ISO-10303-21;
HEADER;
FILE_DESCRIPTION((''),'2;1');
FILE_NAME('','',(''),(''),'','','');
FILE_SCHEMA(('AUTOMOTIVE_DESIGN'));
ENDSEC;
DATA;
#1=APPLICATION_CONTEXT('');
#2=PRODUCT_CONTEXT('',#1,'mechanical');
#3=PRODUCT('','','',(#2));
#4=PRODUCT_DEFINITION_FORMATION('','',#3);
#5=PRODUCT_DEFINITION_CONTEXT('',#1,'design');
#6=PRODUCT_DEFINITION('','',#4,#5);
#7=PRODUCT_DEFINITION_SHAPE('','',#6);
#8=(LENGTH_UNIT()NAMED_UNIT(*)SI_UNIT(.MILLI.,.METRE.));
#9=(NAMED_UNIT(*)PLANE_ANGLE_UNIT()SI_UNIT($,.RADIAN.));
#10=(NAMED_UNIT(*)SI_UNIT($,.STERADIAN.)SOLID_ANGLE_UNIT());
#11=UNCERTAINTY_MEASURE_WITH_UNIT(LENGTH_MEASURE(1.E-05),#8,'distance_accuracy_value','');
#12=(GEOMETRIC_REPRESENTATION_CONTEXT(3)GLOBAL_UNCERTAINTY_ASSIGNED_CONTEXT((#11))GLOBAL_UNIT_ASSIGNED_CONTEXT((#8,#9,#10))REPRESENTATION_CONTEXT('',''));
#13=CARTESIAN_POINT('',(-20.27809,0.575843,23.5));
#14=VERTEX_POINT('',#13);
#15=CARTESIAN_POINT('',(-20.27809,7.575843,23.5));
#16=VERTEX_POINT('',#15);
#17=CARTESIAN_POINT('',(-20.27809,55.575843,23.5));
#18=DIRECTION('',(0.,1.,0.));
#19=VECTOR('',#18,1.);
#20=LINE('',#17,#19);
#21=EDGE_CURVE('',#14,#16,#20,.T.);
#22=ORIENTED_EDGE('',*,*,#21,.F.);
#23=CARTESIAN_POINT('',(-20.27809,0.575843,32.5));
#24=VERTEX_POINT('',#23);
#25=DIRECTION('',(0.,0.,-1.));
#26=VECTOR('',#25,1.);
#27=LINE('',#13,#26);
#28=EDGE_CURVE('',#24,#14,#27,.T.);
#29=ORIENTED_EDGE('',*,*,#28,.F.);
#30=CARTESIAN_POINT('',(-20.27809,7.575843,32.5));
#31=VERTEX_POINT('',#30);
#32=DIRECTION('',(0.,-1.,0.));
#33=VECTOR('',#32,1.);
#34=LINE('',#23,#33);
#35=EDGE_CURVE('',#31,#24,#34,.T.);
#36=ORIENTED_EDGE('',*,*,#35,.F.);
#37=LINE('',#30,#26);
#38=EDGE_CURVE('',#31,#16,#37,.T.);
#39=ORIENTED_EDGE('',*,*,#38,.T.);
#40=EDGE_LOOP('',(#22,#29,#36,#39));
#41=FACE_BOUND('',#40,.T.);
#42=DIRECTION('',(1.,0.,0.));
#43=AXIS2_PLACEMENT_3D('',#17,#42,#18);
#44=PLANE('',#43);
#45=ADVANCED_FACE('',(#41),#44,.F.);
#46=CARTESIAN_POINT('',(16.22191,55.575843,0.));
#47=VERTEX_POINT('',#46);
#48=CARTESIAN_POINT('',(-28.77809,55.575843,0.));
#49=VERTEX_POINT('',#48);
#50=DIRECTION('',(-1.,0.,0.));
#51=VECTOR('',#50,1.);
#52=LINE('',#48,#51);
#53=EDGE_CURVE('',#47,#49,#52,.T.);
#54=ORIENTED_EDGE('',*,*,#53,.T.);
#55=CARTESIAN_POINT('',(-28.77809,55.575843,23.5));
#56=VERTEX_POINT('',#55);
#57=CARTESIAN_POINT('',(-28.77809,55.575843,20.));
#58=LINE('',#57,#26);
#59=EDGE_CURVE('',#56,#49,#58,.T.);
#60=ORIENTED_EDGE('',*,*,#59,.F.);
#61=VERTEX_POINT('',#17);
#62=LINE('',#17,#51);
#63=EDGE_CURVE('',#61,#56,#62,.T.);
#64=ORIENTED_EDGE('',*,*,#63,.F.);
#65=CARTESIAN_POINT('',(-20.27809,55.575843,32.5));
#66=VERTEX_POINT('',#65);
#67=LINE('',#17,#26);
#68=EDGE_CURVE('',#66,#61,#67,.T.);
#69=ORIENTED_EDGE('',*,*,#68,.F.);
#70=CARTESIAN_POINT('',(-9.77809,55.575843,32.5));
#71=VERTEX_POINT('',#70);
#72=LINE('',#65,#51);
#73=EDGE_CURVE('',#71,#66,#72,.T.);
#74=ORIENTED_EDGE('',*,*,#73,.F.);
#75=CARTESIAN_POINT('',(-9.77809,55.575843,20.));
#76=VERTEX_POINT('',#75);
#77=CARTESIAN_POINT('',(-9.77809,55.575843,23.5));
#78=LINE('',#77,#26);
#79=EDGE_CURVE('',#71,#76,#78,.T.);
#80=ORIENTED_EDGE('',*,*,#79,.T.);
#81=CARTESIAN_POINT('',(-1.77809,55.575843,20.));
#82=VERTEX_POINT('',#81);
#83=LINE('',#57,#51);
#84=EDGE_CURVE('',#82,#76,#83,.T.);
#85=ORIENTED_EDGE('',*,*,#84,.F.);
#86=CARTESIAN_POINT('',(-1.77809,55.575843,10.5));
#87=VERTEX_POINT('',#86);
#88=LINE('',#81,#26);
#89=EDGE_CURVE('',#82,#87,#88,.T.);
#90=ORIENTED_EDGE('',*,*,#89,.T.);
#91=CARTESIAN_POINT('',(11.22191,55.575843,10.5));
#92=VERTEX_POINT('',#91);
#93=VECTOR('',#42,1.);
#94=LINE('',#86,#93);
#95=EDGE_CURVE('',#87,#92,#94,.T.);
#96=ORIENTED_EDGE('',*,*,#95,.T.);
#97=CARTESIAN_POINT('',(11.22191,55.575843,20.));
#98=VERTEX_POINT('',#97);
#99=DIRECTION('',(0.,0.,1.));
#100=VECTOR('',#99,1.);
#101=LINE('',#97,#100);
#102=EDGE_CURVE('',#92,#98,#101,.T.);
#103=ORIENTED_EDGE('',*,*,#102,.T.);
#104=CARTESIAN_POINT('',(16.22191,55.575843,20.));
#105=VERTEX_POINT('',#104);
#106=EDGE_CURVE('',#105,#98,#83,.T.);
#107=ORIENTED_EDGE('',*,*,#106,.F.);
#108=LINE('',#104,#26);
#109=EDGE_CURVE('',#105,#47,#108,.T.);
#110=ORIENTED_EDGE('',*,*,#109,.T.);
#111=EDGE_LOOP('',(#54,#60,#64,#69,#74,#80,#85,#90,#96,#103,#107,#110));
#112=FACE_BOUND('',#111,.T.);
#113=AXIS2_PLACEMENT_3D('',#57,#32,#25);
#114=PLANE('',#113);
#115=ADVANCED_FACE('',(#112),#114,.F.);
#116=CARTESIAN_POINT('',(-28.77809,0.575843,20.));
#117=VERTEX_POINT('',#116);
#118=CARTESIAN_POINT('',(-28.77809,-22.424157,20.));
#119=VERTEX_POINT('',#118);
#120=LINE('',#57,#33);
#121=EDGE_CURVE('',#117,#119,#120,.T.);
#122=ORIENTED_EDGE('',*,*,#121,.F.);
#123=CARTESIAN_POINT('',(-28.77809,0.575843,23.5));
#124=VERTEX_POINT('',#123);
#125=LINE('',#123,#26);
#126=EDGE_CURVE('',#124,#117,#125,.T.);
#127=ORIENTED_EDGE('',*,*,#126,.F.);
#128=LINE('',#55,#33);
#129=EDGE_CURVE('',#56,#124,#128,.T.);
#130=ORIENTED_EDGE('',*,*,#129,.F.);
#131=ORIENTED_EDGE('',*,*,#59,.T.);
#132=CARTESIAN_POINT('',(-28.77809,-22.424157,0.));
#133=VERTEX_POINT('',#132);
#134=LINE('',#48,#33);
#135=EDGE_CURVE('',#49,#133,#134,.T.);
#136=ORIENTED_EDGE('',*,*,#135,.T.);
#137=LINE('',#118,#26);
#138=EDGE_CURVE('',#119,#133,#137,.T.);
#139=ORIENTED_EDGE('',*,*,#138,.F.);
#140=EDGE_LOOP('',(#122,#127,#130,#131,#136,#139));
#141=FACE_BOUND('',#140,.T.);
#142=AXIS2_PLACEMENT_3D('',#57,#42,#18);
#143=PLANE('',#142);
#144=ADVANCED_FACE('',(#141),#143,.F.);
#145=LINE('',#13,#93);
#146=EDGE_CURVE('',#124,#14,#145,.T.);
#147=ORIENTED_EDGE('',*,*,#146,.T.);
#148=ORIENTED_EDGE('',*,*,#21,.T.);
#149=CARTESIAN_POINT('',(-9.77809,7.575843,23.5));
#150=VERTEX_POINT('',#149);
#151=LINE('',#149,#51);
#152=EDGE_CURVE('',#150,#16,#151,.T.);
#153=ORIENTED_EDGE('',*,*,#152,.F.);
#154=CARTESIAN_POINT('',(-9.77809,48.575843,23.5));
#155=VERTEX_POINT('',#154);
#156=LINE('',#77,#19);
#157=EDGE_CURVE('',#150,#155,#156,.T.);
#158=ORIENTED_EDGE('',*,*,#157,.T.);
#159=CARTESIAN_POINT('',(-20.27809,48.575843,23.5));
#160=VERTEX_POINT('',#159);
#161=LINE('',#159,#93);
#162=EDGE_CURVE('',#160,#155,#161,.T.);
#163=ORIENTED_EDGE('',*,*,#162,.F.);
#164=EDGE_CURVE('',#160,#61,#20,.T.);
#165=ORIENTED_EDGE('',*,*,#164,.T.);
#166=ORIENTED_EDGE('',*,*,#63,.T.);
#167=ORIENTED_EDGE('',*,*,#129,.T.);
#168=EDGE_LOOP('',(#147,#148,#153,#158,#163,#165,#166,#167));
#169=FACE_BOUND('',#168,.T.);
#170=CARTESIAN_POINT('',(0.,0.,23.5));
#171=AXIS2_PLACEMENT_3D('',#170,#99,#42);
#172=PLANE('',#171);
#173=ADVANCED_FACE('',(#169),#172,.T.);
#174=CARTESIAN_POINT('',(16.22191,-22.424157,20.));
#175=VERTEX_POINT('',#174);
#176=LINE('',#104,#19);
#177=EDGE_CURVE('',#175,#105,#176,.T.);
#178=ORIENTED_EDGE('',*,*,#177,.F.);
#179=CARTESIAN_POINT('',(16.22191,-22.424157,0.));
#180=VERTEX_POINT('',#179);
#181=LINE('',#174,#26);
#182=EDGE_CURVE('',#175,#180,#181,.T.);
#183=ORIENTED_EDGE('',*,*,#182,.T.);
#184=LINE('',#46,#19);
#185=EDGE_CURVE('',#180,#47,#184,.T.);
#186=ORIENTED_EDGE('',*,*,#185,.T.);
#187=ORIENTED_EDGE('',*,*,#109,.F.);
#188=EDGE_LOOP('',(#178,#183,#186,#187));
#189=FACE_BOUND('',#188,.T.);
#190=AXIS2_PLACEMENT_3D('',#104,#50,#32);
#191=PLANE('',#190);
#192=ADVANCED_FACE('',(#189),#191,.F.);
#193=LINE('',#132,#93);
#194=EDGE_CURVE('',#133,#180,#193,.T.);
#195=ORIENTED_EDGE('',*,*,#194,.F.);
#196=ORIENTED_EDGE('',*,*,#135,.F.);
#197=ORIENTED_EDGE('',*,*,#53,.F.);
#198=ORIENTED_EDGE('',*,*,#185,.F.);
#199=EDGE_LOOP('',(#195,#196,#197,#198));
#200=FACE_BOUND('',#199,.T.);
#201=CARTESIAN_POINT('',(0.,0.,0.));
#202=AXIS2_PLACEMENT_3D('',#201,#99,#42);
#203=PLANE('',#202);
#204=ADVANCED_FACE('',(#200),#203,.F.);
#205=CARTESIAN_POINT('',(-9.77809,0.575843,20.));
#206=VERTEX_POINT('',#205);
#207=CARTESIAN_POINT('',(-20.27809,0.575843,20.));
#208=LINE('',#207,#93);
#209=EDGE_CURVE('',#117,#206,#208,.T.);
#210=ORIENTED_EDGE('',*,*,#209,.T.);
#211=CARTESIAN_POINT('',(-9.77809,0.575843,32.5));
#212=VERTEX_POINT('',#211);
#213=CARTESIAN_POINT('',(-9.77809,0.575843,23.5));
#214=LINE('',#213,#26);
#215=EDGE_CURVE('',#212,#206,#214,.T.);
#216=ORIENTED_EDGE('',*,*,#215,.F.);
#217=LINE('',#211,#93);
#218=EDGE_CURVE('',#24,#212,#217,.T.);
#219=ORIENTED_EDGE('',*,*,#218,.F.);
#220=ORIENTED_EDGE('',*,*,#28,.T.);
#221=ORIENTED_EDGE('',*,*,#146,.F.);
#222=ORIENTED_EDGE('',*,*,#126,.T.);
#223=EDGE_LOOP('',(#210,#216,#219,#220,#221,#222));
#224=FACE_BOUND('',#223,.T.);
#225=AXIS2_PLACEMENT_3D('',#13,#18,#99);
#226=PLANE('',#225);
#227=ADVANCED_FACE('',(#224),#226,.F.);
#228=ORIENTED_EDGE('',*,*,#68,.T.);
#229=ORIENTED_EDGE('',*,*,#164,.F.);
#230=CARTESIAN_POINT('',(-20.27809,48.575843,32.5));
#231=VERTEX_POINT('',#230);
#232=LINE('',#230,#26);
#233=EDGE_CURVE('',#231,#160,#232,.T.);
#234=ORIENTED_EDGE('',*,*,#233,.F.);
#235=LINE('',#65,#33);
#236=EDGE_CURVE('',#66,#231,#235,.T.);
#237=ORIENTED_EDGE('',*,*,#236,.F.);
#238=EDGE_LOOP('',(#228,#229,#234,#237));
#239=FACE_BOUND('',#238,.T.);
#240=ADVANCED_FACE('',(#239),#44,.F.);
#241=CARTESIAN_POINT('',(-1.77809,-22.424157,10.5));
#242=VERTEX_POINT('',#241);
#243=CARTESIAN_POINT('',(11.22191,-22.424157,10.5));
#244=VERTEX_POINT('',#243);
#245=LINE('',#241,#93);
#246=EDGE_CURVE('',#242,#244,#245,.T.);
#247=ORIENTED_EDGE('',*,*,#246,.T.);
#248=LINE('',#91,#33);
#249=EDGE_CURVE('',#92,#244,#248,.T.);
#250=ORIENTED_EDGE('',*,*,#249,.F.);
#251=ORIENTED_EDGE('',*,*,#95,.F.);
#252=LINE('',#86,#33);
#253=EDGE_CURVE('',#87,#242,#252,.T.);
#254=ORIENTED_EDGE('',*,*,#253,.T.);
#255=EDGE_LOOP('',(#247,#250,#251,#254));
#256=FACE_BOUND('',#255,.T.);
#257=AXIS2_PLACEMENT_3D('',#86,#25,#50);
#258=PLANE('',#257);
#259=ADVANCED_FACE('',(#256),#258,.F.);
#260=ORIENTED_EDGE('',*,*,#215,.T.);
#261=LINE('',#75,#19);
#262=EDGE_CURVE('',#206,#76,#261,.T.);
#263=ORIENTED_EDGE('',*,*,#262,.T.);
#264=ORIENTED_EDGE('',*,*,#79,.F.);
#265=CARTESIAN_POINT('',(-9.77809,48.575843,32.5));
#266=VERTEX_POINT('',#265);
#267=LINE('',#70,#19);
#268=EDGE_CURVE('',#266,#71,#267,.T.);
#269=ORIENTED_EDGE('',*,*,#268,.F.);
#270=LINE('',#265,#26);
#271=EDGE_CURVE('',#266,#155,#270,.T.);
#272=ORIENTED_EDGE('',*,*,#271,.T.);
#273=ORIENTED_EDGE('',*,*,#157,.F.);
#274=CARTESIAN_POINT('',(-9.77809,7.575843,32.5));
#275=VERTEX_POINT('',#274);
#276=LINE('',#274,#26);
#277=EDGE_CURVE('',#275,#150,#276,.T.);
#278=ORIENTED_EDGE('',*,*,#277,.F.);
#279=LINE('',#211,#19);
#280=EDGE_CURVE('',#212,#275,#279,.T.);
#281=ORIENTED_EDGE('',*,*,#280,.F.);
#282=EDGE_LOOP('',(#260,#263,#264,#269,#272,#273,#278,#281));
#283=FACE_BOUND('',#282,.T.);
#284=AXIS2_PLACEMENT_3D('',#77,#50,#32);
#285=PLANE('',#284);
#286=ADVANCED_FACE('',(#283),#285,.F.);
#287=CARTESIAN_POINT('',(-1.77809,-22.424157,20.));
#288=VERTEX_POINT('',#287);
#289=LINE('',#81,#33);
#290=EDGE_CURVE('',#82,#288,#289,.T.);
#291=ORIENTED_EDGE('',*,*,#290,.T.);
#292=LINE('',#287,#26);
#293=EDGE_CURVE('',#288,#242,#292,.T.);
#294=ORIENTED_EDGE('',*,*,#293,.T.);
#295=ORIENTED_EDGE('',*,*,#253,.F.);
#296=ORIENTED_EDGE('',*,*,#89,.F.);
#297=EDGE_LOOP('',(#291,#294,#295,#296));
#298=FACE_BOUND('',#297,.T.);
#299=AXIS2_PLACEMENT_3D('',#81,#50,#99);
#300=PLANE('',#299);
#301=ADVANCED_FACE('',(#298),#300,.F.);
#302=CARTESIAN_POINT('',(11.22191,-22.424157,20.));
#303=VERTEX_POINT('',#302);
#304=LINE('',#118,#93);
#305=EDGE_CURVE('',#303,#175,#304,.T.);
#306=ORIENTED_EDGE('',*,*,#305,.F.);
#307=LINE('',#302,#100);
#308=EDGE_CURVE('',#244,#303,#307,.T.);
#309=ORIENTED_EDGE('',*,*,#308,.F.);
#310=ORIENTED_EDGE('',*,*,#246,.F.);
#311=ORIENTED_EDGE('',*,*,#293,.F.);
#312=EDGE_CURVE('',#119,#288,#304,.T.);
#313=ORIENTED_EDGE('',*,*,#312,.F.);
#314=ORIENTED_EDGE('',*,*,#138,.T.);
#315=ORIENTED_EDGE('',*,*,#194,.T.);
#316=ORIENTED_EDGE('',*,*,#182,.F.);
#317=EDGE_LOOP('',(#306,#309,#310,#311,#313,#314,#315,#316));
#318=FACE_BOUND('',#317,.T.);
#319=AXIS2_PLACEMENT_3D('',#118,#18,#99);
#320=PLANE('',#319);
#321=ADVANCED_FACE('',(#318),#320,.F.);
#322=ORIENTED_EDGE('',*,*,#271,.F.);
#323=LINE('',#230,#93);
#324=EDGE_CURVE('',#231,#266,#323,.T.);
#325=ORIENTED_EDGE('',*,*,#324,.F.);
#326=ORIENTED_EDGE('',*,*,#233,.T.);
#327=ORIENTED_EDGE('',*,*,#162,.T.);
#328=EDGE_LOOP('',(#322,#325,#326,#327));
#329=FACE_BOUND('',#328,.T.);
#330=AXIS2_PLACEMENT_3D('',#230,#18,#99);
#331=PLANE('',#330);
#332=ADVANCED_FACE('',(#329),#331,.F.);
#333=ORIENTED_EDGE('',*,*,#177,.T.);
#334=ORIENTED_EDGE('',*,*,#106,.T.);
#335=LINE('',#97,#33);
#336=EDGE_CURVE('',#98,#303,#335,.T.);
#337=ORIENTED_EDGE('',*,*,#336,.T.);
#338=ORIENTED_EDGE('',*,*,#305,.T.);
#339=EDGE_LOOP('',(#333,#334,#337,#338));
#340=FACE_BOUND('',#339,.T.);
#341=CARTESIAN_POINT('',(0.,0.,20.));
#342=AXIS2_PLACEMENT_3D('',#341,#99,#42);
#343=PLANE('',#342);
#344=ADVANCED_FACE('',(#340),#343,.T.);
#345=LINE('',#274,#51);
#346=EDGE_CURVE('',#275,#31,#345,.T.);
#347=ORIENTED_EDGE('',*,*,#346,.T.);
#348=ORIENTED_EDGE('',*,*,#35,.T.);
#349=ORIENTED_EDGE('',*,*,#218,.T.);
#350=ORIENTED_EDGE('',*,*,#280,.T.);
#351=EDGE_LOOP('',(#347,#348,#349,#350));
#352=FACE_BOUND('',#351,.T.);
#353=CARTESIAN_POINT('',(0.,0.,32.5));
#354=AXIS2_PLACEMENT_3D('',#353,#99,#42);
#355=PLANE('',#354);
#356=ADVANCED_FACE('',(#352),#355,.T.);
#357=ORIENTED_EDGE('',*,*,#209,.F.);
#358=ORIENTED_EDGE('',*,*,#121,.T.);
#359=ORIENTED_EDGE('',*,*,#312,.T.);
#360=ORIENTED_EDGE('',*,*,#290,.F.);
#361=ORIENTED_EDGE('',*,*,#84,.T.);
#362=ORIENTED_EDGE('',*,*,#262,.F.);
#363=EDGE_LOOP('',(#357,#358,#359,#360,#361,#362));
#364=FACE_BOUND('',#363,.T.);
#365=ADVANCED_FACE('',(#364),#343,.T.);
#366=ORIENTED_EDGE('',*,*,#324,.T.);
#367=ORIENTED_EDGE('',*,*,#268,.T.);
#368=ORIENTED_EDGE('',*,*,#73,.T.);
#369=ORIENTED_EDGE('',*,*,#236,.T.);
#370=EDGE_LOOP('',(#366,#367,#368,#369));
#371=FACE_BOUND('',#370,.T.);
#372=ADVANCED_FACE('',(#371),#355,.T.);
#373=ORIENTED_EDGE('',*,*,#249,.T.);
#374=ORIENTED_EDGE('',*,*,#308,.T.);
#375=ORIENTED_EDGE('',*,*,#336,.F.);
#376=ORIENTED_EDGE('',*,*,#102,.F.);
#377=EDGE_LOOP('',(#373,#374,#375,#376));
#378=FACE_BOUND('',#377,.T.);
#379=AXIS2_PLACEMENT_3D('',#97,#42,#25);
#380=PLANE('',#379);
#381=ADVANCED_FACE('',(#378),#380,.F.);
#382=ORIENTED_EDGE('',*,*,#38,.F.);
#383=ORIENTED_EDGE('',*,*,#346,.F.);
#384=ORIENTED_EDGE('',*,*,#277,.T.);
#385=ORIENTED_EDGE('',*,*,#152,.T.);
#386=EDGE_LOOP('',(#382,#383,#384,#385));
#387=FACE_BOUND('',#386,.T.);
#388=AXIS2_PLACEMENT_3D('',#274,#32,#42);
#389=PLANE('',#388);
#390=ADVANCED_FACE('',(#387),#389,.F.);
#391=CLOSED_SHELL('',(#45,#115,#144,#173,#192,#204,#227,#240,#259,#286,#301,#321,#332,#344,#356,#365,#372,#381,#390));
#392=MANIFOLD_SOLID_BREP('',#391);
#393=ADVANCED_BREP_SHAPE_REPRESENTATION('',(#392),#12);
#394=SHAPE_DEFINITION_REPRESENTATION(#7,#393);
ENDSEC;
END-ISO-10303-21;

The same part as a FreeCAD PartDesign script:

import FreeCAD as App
import Part
import Sketcher

V = App.Vector
Q = App.Units.Quantity


def add_polygon(sketch, points):
    """Adds a closed chain of lines whose ends are joined by coincident constraints."""
    first, n = sketch.GeometryCount, len(points)
    for a, b in zip(points, points[1:] + points[:1]):
        sketch.addGeometry(Part.LineSegment(App.Vector(*a, 0), App.Vector(*b, 0)), False)
    for i in range(n):
        sketch.addConstraint(Sketcher.Constraint("Coincident", first + i, 2, first + (i + 1) % n, 1))

doc = App.newDocument("Part")
body = doc.addObject("PartDesign::Body", "Body")

# Sketch on XY plane
sketch1 = body.newObject("Sketcher::SketchObject", "Sketch")
sketch1.AttachmentSupport = (doc.getObject("XY_Plane"), [""])
sketch1.MapMode = "FlatFace"
add_polygon(sketch1, [(-29, 56), (-29, -22), (16, -22), (16, 56)])  # lines 0-3
sketch1.addConstraint([
    Sketcher.Constraint("Vertical", 0),
    Sketcher.Constraint("Horizontal", 1),
    Sketcher.Constraint("Vertical", 2),
    Sketcher.Constraint("Horizontal", 3),
    Sketcher.Constraint("DistanceX", 1, 1, 1, 2, Q("45 mm")),
    Sketcher.Constraint("DistanceY", 0, 2, 0, 1, Q("78 mm")),
    Sketcher.Constraint("DistanceX", 0, 2, -1, 1, Q("28.77809 mm")),
    Sketcher.Constraint("DistanceY", 0, 2, -1, 1, Q("22.424157 mm")),
])
pad1 = body.newObject("PartDesign::Pad", "Pad")
pad1.Profile = sketch1
pad1.Length = 20

# Sketch on XZ plane
sketch2 = body.newObject("Sketcher::SketchObject", "Sketch001")
sketch2.AttachmentSupport = (doc.getObject("XZ_Plane"), [""])
sketch2.MapMode = "FlatFace"
sketch2.AttachmentOffset = App.Placement(V(0, 0, 22.424157), App.Rotation())
add_polygon(sketch2, [(-2, 20), (-2, 10), (11, 10), (11, 20)])  # lines 0-3
sketch2.addConstraint([
    Sketcher.Constraint("Vertical", 0),
    Sketcher.Constraint("Horizontal", 1),
    Sketcher.Constraint("Vertical", 2),
    Sketcher.Constraint("Horizontal", 3),
    Sketcher.Constraint("DistanceX", 1, 1, 1, 2, Q("13 mm")),
    Sketcher.Constraint("DistanceY", 0, 2, 0, 1, Q("9.5 mm")),
    Sketcher.Constraint("DistanceY", -1, 1, 2, 2, Q("20 mm")),
    Sketcher.Constraint("DistanceX", 0, 2, -1, 1, Q("1.77809 mm")),
])
pocket1 = body.newObject("PartDesign::Pocket", "Pocket")
pocket1.Profile = sketch2
pocket1.Type = "ThroughAll"

# Sketch on XY plane
sketch3 = body.newObject("Sketcher::SketchObject", "Sketch002")
sketch3.AttachmentSupport = (doc.getObject("XY_Plane"), [""])
sketch3.MapMode = "FlatFace"
sketch3.AttachmentOffset = App.Placement(V(0, 0, 20), App.Rotation())
add_polygon(sketch3, [(-20, 56), (-20, 1), (-10, 1), (-10, 56)])  # lines 0-3
sketch3.addConstraint([
    Sketcher.Constraint("Vertical", 0),
    Sketcher.Constraint("Horizontal", 1),
    Sketcher.Constraint("Vertical", 2),
    Sketcher.Constraint("Horizontal", 3),
    Sketcher.Constraint("DistanceY", 0, 2, 0, 1, Q("55 mm")),
    Sketcher.Constraint("DistanceX", 1, 1, 1, 2, Q("10.5 mm")),
    Sketcher.Constraint("DistanceX", 0, 2, -1, 1, Q("20.27809 mm")),
    Sketcher.Constraint("DistanceY", -1, 1, 0, 2, Q("0.575843 mm")),
])
pad2 = body.newObject("PartDesign::Pad", "Pad001")
pad2.Profile = sketch3
pad2.Length = 3.5

# Sketch on XY plane
sketch4 = body.newObject("Sketcher::SketchObject", "Sketch003")
sketch4.AttachmentSupport = (doc.getObject("XY_Plane"), [""])
sketch4.MapMode = "FlatFace"
sketch4.AttachmentOffset = App.Placement(V(0, 0, 23.5), App.Rotation())
add_polygon(sketch4, [(-20, 8), (-20, 1), (-10, 1), (-10, 8)])  # lines 0-3
add_polygon(sketch4, [(-20, 56), (-20, 49), (-10, 49), (-10, 56)])  # lines 4-7
sketch4.addConstraint([
    Sketcher.Constraint("Vertical", 0),
    Sketcher.Constraint("Horizontal", 1),
    Sketcher.Constraint("Vertical", 2),
    Sketcher.Constraint("Horizontal", 3),
    Sketcher.Constraint("Vertical", 4),
    Sketcher.Constraint("Horizontal", 5),
    Sketcher.Constraint("Vertical", 6),
    Sketcher.Constraint("Horizontal", 7),
    Sketcher.Constraint("Vertical", 3, 2, 4, 2),
    Sketcher.Constraint("Vertical", 2, 2, 5, 2),
    Sketcher.Constraint("Equal", 2, 4),
    Sketcher.Constraint("DistanceY", 0, 2, 0, 1, Q("7 mm")),
    Sketcher.Constraint("DistanceX", 1, 1, 1, 2, Q("10.5 mm")),
    Sketcher.Constraint("DistanceY", 3, 2, 4, 2, Q("41 mm")),
    Sketcher.Constraint("DistanceX", 0, 2, -1, 1, Q("20.27809 mm")),
    Sketcher.Constraint("DistanceY", -1, 1, 0, 2, Q("0.575843 mm")),
])
pad3 = body.newObject("PartDesign::Pad", "Pad002")
pad3.Profile = sketch4
pad3.Length = 9

# Sketch on XY plane
sketch5 = body.newObject("Sketcher::SketchObject", "Sketch004")
sketch5.AttachmentSupport = (doc.getObject("XY_Plane"), [""])
sketch5.MapMode = "FlatFace"
sketch5.AttachmentOffset = App.Placement(V(0, 0, 20), App.Rotation())
add_polygon(sketch5, [(-29, 56), (-29, 1), (-20, 1), (-20, 56)])  # lines 0-3
sketch5.addConstraint([
    Sketcher.Constraint("Vertical", 0),
    Sketcher.Constraint("Horizontal", 1),
    Sketcher.Constraint("Vertical", 2),
    Sketcher.Constraint("Horizontal", 3),
    Sketcher.Constraint("DistanceY", 0, 2, 0, 1, Q("55 mm")),
    Sketcher.Constraint("DistanceX", 1, 1, 1, 2, Q("8.5 mm")),
    Sketcher.Constraint("DistanceX", 0, 2, -1, 1, Q("28.77809 mm")),
    Sketcher.Constraint("DistanceY", -1, 1, 0, 2, Q("0.575843 mm")),
])
pad4 = body.newObject("PartDesign::Pad", "Pad003")
pad4.Profile = sketch5
pad4.Length = 3.5

doc.recompute()
